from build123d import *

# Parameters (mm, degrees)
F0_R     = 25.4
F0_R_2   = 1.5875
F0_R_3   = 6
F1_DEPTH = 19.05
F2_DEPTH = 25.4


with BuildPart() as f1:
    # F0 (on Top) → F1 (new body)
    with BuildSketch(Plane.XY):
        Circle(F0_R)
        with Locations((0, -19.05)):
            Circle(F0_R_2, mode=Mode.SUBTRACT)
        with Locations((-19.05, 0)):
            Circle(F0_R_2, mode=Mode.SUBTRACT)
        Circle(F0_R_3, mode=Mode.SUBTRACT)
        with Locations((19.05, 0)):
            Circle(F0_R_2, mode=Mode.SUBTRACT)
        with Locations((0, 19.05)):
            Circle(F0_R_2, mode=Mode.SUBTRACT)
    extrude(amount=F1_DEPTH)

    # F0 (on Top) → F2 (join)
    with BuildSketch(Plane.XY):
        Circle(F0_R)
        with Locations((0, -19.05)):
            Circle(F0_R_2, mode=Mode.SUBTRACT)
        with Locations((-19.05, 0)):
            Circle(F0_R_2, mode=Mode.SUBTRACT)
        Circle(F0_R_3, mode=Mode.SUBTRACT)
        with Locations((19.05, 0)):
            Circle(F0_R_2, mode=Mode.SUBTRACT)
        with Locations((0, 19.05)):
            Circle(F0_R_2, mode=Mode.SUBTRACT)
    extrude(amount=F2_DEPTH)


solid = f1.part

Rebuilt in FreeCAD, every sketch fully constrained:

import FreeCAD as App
import Part
import Sketcher
Q = App.Units.Quantity

doc = App.newDocument("Part")
body = doc.addObject("PartDesign::Body", "Body")

# Sketch on XY plane
sketch1 = body.newObject("Sketcher::SketchObject", "Sketch")
sketch1.AttachmentSupport = (doc.getObject("XY_Plane"), [""])
sketch1.MapMode = "FlatFace"
sketch1.addGeometry(Part.Circle(App.Vector(0, 0, 0), App.Vector(0, 0, 1), 25.4), False)
sketch1.addGeometry(Part.Circle(App.Vector(0, -19.1, 0), App.Vector(0, 0, 1), 1.6), False)
sketch1.addGeometry(Part.Circle(App.Vector(-19.1, 0, 0), App.Vector(0, 0, 1), 1.6), False)
sketch1.addGeometry(Part.Circle(App.Vector(0, 0, 0), App.Vector(0, 0, 1), 6), False)
sketch1.addGeometry(Part.Circle(App.Vector(19.1, 0, 0), App.Vector(0, 0, 1), 1.6), False)
sketch1.addGeometry(Part.Circle(App.Vector(0, 19.1, 0), App.Vector(0, 0, 1), 1.6), False)
sketch1.addConstraint(Sketcher.Constraint("Coincident", 0, 3, -1, 1))
sketch1.addConstraint(Sketcher.Constraint("Coincident", 3, 3, -1, 1))
sketch1.addConstraint(Sketcher.Constraint("Equal", 1, 2))
sketch1.addConstraint(Sketcher.Constraint("Equal", 2, 4))
sketch1.addConstraint(Sketcher.Constraint("Equal", 4, 5))
sketch1.addConstraint(Sketcher.Constraint("Symmetric", 2, 3, 4, 3, -1, 1))
sketch1.addConstraint(Sketcher.Constraint("Symmetric", 1, 3, 5, 3, -1, 1))
sketch1.addConstraint(Sketcher.Constraint("PointOnObject", 1, 3, -2))
sketch1.addConstraint(Sketcher.Constraint("PointOnObject", 2, 3, -1))
sketch1.addConstraint(Sketcher.Constraint("Diameter", 0, Q("2 in")))
sketch1.addConstraint(Sketcher.Constraint("Diameter", 1, Q("0.125 in")))
sketch1.addConstraint(Sketcher.Constraint("DistanceX", 2, 3, 4, 3, Q("1.5 in")))
sketch1.addConstraint(Sketcher.Constraint("DistanceY", 1, 3, 5, 3, Q("1.5 in")))
sketch1.addConstraint(Sketcher.Constraint("Diameter", 3, 12.0))
pad1 = body.newObject("PartDesign::Pad", "Pad")
pad1.Profile = sketch1
pad1.Length = Q("0.75 in")

# Sketch on XY plane
sketch2 = body.newObject("Sketcher::SketchObject", "Sketch001")
sketch2.AttachmentSupport = (doc.getObject("XY_Plane"), [""])
sketch2.MapMode = "FlatFace"
sketch2.addGeometry(Part.Circle(App.Vector(0, 0, 0), App.Vector(0, 0, 1), 25.4), False)
sketch2.addGeometry(Part.Circle(App.Vector(0, -19.1, 0), App.Vector(0, 0, 1), 1.6), False)
sketch2.addGeometry(Part.Circle(App.Vector(-19.1, 0, 0), App.Vector(0, 0, 1), 1.6), False)
sketch2.addGeometry(Part.Circle(App.Vector(0, 0, 0), App.Vector(0, 0, 1), 6), False)
sketch2.addGeometry(Part.Circle(App.Vector(19.1, 0, 0), App.Vector(0, 0, 1), 1.6), False)
sketch2.addGeometry(Part.Circle(App.Vector(0, 19.1, 0), App.Vector(0, 0, 1), 1.6), False)
sketch2.addConstraint(Sketcher.Constraint("Coincident", 0, 3, -1, 1))
sketch2.addConstraint(Sketcher.Constraint("Coincident", 3, 3, -1, 1))
sketch2.addConstraint(Sketcher.Constraint("Equal", 1, 2))
sketch2.addConstraint(Sketcher.Constraint("Equal", 2, 4))
sketch2.addConstraint(Sketcher.Constraint("Equal", 4, 5))
sketch2.addConstraint(Sketcher.Constraint("Symmetric", 2, 3, 4, 3, -1, 1))
sketch2.addConstraint(Sketcher.Constraint("Symmetric", 1, 3, 5, 3, -1, 1))
sketch2.addConstraint(Sketcher.Constraint("PointOnObject", 1, 3, -2))
sketch2.addConstraint(Sketcher.Constraint("PointOnObject", 2, 3, -1))
sketch2.addConstraint(Sketcher.Constraint("Diameter", 0, Q("2 in")))
sketch2.addConstraint(Sketcher.Constraint("Diameter", 1, Q("0.125 in")))
sketch2.addConstraint(Sketcher.Constraint("DistanceX", 2, 3, 4, 3, Q("1.5 in")))
sketch2.addConstraint(Sketcher.Constraint("DistanceY", 1, 3, 5, 3, Q("1.5 in")))
sketch2.addConstraint(Sketcher.Constraint("Diameter", 3, 12.0))
pad2 = body.newObject("PartDesign::Pad", "Pad001")
pad2.Profile = sketch2
pad2.Length = Q("1 in")

doc.recompute()
